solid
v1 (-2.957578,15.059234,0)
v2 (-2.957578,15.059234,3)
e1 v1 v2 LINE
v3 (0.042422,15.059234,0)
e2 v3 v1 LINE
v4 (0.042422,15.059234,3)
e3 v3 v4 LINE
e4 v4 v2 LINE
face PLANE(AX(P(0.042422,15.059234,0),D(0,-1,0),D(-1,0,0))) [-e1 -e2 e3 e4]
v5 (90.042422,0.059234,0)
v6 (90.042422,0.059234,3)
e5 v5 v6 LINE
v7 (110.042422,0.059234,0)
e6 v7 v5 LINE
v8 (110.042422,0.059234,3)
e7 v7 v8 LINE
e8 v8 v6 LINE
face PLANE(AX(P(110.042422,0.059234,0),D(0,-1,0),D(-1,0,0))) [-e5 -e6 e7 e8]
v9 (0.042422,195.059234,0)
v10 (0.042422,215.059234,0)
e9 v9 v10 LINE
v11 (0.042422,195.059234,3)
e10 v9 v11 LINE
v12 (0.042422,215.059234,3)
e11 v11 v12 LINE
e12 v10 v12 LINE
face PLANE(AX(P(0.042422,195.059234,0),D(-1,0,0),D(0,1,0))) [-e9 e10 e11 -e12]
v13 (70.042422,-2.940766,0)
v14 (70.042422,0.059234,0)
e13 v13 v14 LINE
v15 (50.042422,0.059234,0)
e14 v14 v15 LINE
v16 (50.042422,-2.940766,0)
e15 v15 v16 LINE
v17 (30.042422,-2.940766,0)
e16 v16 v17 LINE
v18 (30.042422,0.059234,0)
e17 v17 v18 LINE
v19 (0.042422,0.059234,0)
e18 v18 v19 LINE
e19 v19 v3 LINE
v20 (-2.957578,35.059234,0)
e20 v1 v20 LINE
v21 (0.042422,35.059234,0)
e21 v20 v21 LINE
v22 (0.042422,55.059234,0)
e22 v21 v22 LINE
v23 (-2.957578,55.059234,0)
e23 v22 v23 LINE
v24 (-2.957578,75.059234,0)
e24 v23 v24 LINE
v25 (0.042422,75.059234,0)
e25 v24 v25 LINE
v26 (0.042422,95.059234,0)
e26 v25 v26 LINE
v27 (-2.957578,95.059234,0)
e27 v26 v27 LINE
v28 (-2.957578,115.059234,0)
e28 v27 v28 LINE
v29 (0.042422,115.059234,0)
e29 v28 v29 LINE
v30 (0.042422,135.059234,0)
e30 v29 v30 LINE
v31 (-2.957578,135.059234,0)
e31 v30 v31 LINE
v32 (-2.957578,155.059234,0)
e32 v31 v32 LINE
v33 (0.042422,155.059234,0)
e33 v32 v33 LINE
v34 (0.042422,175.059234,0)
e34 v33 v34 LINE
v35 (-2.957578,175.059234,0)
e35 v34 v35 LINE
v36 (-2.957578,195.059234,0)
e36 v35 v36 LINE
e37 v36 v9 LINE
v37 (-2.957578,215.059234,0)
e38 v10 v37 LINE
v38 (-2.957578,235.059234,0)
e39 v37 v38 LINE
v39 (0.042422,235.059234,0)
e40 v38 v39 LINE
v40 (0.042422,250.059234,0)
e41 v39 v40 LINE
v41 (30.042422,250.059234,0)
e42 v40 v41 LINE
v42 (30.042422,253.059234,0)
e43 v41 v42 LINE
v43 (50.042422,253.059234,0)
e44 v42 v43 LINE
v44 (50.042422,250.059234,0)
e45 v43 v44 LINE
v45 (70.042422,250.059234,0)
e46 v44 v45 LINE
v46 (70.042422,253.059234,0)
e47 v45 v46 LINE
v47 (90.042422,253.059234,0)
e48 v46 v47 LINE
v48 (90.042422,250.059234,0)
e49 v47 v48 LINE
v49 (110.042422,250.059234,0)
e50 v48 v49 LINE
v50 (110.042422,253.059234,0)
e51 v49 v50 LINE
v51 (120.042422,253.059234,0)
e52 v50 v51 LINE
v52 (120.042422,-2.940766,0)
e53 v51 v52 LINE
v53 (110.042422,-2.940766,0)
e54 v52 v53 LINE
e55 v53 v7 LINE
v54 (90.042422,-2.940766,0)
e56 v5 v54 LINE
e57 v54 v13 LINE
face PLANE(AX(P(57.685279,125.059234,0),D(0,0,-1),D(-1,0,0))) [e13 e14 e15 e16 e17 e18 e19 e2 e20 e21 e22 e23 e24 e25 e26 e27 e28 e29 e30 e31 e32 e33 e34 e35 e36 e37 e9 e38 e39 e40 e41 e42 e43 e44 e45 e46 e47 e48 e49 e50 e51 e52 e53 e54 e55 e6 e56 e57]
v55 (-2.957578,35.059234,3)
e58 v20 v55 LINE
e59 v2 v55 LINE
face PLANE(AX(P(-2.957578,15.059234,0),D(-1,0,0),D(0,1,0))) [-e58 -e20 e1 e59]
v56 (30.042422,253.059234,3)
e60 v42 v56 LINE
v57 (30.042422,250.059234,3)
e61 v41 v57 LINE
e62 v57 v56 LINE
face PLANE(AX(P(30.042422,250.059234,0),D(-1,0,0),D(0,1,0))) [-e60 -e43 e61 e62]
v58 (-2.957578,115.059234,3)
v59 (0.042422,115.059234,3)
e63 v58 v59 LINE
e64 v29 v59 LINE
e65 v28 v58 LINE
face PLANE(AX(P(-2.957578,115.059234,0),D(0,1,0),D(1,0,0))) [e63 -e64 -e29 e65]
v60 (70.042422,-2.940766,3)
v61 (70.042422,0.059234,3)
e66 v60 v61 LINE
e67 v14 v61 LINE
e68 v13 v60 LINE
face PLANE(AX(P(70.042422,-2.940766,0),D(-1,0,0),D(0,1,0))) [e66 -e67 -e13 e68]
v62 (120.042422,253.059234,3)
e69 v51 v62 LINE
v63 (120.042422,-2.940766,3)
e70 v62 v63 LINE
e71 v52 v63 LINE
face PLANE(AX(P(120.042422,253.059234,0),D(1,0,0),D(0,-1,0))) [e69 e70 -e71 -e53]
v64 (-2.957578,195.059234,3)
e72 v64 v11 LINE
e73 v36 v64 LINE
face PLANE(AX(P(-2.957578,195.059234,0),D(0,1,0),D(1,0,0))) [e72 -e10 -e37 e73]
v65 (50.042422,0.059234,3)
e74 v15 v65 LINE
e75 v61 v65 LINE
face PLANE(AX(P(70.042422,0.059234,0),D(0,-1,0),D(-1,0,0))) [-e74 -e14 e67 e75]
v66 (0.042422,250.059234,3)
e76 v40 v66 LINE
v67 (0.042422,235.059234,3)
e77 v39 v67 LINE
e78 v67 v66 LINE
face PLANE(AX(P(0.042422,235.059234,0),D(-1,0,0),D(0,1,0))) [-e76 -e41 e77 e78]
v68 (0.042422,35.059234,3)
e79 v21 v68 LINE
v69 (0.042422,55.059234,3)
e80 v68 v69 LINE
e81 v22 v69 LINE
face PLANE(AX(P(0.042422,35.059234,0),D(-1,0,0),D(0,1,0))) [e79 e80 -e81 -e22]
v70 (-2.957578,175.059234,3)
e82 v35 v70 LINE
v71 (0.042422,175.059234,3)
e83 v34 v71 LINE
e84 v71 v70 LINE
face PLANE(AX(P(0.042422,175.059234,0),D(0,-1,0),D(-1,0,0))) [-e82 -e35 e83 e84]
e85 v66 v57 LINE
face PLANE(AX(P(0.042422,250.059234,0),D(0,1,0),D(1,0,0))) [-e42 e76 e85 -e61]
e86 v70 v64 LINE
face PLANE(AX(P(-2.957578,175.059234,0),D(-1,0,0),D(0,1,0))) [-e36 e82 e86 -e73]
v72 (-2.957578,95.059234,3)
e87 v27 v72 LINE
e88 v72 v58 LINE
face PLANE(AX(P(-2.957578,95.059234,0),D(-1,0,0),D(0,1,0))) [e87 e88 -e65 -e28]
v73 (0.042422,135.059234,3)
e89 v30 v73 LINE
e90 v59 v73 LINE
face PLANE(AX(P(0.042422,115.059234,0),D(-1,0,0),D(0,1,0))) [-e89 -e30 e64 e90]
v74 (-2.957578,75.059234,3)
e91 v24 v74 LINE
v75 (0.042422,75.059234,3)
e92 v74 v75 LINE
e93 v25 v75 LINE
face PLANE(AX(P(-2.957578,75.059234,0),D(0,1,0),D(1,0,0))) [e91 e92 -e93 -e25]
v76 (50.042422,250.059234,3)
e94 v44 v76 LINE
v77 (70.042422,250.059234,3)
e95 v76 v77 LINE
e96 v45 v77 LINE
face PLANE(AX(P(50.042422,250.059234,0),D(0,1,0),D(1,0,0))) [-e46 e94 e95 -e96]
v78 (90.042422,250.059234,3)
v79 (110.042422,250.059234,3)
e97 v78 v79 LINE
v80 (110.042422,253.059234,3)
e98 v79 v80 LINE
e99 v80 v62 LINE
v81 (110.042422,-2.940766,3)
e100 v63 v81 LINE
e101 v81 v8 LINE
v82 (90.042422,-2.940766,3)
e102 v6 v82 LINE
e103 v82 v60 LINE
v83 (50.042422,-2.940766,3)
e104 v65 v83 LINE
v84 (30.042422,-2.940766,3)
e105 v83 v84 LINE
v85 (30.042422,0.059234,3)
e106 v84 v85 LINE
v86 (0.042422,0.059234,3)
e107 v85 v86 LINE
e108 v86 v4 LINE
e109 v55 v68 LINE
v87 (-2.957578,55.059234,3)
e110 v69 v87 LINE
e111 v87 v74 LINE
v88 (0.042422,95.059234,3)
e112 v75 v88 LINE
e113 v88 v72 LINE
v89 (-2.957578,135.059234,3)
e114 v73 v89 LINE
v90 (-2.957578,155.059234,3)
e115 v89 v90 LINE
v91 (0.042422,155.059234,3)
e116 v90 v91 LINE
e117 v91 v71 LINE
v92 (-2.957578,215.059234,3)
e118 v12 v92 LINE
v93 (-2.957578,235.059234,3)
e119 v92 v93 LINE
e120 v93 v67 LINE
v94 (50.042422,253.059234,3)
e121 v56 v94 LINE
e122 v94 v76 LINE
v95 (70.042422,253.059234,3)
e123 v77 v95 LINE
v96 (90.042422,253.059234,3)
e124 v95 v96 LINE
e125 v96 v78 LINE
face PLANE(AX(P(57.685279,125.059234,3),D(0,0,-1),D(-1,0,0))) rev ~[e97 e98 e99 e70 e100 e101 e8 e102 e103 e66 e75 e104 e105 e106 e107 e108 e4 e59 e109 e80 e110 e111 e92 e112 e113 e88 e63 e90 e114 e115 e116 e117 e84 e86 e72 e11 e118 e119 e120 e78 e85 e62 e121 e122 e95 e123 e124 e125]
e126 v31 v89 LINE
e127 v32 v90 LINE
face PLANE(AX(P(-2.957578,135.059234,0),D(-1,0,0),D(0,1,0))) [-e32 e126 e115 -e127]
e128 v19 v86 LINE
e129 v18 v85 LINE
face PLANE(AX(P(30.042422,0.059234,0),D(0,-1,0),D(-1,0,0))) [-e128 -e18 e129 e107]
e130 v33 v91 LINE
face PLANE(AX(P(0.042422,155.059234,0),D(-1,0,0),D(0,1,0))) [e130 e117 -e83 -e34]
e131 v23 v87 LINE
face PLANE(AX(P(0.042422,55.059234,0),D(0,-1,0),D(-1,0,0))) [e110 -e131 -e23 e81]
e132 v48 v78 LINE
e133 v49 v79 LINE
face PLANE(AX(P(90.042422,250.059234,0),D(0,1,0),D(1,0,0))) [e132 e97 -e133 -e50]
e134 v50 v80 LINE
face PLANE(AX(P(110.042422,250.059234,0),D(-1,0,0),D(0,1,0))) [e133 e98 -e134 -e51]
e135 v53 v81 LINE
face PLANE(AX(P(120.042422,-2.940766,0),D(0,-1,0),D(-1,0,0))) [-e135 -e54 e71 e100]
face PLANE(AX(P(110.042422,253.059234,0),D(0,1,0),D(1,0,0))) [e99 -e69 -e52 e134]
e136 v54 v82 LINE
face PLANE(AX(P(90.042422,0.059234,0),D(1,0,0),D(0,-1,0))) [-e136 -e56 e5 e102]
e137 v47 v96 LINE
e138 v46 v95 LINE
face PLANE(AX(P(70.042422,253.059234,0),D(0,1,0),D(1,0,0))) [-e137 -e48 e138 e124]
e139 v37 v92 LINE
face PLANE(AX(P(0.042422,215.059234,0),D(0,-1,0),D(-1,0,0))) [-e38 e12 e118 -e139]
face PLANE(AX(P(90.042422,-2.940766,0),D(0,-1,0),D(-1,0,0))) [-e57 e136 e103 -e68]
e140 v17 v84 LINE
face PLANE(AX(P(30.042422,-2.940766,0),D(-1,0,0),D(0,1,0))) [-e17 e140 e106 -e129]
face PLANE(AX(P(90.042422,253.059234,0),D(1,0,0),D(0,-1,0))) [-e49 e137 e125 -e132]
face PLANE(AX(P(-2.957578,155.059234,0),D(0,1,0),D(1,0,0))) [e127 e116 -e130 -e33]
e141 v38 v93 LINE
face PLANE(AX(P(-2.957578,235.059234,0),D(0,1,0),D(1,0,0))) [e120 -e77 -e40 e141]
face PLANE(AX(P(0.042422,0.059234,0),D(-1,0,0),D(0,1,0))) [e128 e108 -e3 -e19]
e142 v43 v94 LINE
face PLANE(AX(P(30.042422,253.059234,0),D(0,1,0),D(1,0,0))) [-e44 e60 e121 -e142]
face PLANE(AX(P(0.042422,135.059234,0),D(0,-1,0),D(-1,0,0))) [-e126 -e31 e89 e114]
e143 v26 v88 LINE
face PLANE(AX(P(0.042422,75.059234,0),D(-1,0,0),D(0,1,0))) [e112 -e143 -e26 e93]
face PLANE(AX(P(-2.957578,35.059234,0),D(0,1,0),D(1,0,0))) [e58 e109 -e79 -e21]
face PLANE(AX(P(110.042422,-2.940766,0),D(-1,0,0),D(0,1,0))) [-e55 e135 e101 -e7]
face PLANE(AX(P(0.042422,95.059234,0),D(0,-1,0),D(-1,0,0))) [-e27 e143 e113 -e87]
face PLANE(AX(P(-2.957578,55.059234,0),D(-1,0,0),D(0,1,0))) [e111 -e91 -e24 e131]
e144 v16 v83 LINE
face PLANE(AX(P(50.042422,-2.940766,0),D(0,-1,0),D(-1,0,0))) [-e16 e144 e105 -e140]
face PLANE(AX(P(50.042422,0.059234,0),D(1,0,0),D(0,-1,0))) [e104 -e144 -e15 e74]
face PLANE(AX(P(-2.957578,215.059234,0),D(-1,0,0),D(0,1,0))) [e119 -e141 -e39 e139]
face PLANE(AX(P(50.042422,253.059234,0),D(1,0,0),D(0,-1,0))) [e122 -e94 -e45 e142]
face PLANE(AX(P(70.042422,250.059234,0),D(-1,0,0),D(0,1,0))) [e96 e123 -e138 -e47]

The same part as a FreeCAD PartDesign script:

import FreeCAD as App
import Part
import Sketcher

doc = App.newDocument("Part")
body = doc.addObject("PartDesign::Body", "Body")

sketch1 = body.newObject("Sketcher::SketchObject", "Sketch")
sketch1.AttachmentSupport = (doc.getObject("XY_Plane"), [""])
sketch1.MapMode = "FlatFace"
sketch1.addGeometry(Part.LineSegment(App.Vector(0, 75.1, 0), App.Vector(-3, 75.1, 0)), False)
sketch1.addGeometry(Part.LineSegment(App.Vector(-3, 75.1, 0), App.Vector(-3, 55.1, 0)), False)
sketch1.addGeometry(Part.LineSegment(App.Vector(-3, 55.1, 0), App.Vector(0, 55.1, 0)), False)
sketch1.addGeometry(Part.LineSegment(App.Vector(0, 55.1, 0), App.Vector(0, 35.1, 0)), False)
sketch1.addGeometry(Part.LineSegment(App.Vector(0, 35.1, 0), App.Vector(-3, 35.1, 0)), False)
sketch1.addGeometry(Part.LineSegment(App.Vector(-3, 35.1, 0), App.Vector(-3, 15.1, 0)), False)
sketch1.addGeometry(Part.LineSegment(App.Vector(-3, 15.1, 0), App.Vector(0, 15.1, 0)), False)
sketch1.addGeometry(Part.LineSegment(App.Vector(0, 15.1, 0), App.Vector(0, 0.1, 0)), False)
sketch1.addGeometry(Part.LineSegment(App.Vector(0, 0.1, 0), App.Vector(30, 0.1, 0)), False)
sketch1.addGeometry(Part.LineSegment(App.Vector(30, 0.1, 0), App.Vector(30, -2.9, 0)), False)
sketch1.addGeometry(Part.LineSegment(App.Vector(30, -2.9, 0), App.Vector(50, -2.9, 0)), False)
sketch1.addGeometry(Part.LineSegment(App.Vector(50, -2.9, 0), App.Vector(50, 0.1, 0)), False)
sketch1.addGeometry(Part.LineSegment(App.Vector(50, 0.1, 0), App.Vector(70, 0.1, 0)), False)
sketch1.addGeometry(Part.LineSegment(App.Vector(70, 0.1, 0), App.Vector(70, -2.9, 0)), False)
sketch1.addGeometry(Part.LineSegment(App.Vector(70, -2.9, 0), App.Vector(90, -2.9, 0)), False)
sketch1.addGeometry(Part.LineSegment(App.Vector(90, -2.9, 0), App.Vector(90, 0.1, 0)), False)
sketch1.addGeometry(Part.LineSegment(App.Vector(90, 0.1, 0), App.Vector(110, 0.1, 0)), False)
sketch1.addGeometry(Part.LineSegment(App.Vector(110, 0.1, 0), App.Vector(110, -2.9, 0)), False)
sketch1.addGeometry(Part.LineSegment(App.Vector(110, -2.9, 0), App.Vector(120, -2.9, 0)), False)
sketch1.addGeometry(Part.LineSegment(App.Vector(120, -2.9, 0), App.Vector(120, 253.1, 0)), False)
sketch1.addGeometry(Part.LineSegment(App.Vector(120, 253.1, 0), App.Vector(110, 253.1, 0)), False)
sketch1.addGeometry(Part.LineSegment(App.Vector(110, 253.1, 0), App.Vector(110, 250.1, 0)), False)
sketch1.addGeometry(Part.LineSegment(App.Vector(110, 250.1, 0), App.Vector(90, 250.1, 0)), False)
sketch1.addGeometry(Part.LineSegment(App.Vector(90, 250.1, 0), App.Vector(90, 253.1, 0)), False)
sketch1.addGeometry(Part.LineSegment(App.Vector(90, 253.1, 0), App.Vector(70, 253.1, 0)), False)
sketch1.addGeometry(Part.LineSegment(App.Vector(70, 253.1, 0), App.Vector(70, 250.1, 0)), False)
sketch1.addGeometry(Part.LineSegment(App.Vector(70, 250.1, 0), App.Vector(50, 250.1, 0)), False)
sketch1.addGeometry(Part.LineSegment(App.Vector(50, 250.1, 0), App.Vector(50, 253.1, 0)), False)
sketch1.addGeometry(Part.LineSegment(App.Vector(50, 253.1, 0), App.Vector(30, 253.1, 0)), False)
sketch1.addGeometry(Part.LineSegment(App.Vector(30, 253.1, 0), App.Vector(30, 250.1, 0)), False)
sketch1.addGeometry(Part.LineSegment(App.Vector(30, 250.1, 0), App.Vector(0, 250.1, 0)), False)
sketch1.addGeometry(Part.LineSegment(App.Vector(0, 250.1, 0), App.Vector(0, 235.1, 0)), False)
sketch1.addGeometry(Part.LineSegment(App.Vector(0, 235.1, 0), App.Vector(-3, 235.1, 0)), False)
sketch1.addGeometry(Part.LineSegment(App.Vector(-3, 235.1, 0), App.Vector(-3, 215.1, 0)), False)
sketch1.addGeometry(Part.LineSegment(App.Vector(-3, 215.1, 0), App.Vector(0, 215.1, 0)), False)
sketch1.addGeometry(Part.LineSegment(App.Vector(0, 215.1, 0), App.Vector(0, 195.1, 0)), False)
sketch1.addGeometry(Part.LineSegment(App.Vector(0, 195.1, 0), App.Vector(-3, 195.1, 0)), False)
sketch1.addGeometry(Part.LineSegment(App.Vector(-3, 195.1, 0), App.Vector(-3, 175.1, 0)), False)
sketch1.addGeometry(Part.LineSegment(App.Vector(-3, 175.1, 0), App.Vector(0, 175.1, 0)), False)
sketch1.addGeometry(Part.LineSegment(App.Vector(0, 175.1, 0), App.Vector(0, 155.1, 0)), False)
sketch1.addGeometry(Part.LineSegment(App.Vector(0, 155.1, 0), App.Vector(-3, 155.1, 0)), False)
sketch1.addGeometry(Part.LineSegment(App.Vector(-3, 155.1, 0), App.Vector(-3, 135.1, 0)), False)
sketch1.addGeometry(Part.LineSegment(App.Vector(-3, 135.1, 0), App.Vector(0, 135.1, 0)), False)
sketch1.addGeometry(Part.LineSegment(App.Vector(0, 135.1, 0), App.Vector(0, 115.1, 0)), False)
sketch1.addGeometry(Part.LineSegment(App.Vector(0, 115.1, 0), App.Vector(-3, 115.1, 0)), False)
sketch1.addGeometry(Part.LineSegment(App.Vector(-3, 115.1, 0), App.Vector(-3, 95.1, 0)), False)
sketch1.addGeometry(Part.LineSegment(App.Vector(-3, 95.1, 0), App.Vector(0, 95.1, 0)), False)
sketch1.addGeometry(Part.LineSegment(App.Vector(0, 95.1, 0), App.Vector(0, 75.1, 0)), False)
sketch1.addConstraint(Sketcher.Constraint("Coincident", 0, 2, 1, 1))
sketch1.addConstraint(Sketcher.Constraint("Coincident", 1, 2, 2, 1))
sketch1.addConstraint(Sketcher.Constraint("Coincident", 2, 2, 3, 1))
sketch1.addConstraint(Sketcher.Constraint("Coincident", 3, 2, 4, 1))
sketch1.addConstraint(Sketcher.Constraint("Coincident", 4, 2, 5, 1))
sketch1.addConstraint(Sketcher.Constraint("Coincident", 5, 2, 6, 1))
sketch1.addConstraint(Sketcher.Constraint("Coincident", 6, 2, 7, 1))
sketch1.addConstraint(Sketcher.Constraint("Coincident", 7, 2, 8, 1))
sketch1.addConstraint(Sketcher.Constraint("Coincident", 8, 2, 9, 1))
sketch1.addConstraint(Sketcher.Constraint("Coincident", 9, 2, 10, 1))
sketch1.addConstraint(Sketcher.Constraint("Coincident", 10, 2, 11, 1))
sketch1.addConstraint(Sketcher.Constraint("Coincident", 11, 2, 12, 1))
sketch1.addConstraint(Sketcher.Constraint("Coincident", 12, 2, 13, 1))
sketch1.addConstraint(Sketcher.Constraint("Coincident", 13, 2, 14, 1))
sketch1.addConstraint(Sketcher.Constraint("Coincident", 14, 2, 15, 1))
sketch1.addConstraint(Sketcher.Constraint("Coincident", 15, 2, 16, 1))
sketch1.addConstraint(Sketcher.Constraint("Coincident", 16, 2, 17, 1))
sketch1.addConstraint(Sketcher.Constraint("Coincident", 17, 2, 18, 1))
sketch1.addConstraint(Sketcher.Constraint("Coincident", 18, 2, 19, 1))
sketch1.addConstraint(Sketcher.Constraint("Coincident", 19, 2, 20, 1))
sketch1.addConstraint(Sketcher.Constraint("Coincident", 20, 2, 21, 1))
sketch1.addConstraint(Sketcher.Constraint("Coincident", 21, 2, 22, 1))
sketch1.addConstraint(Sketcher.Constraint("Coincident", 22, 2, 23, 1))
sketch1.addConstraint(Sketcher.Constraint("Coincident", 23, 2, 24, 1))
sketch1.addConstraint(Sketcher.Constraint("Coincident", 24, 2, 25, 1))
sketch1.addConstraint(Sketcher.Constraint("Coincident", 25, 2, 26, 1))
sketch1.addConstraint(Sketcher.Constraint("Coincident", 26, 2, 27, 1))
sketch1.addConstraint(Sketcher.Constraint("Coincident", 27, 2, 28, 1))
sketch1.addConstraint(Sketcher.Constraint("Coincident", 28, 2, 29, 1))
sketch1.addConstraint(Sketcher.Constraint("Coincident", 29, 2, 30, 1))
sketch1.addConstraint(Sketcher.Constraint("Coincident", 30, 2, 31, 1))
sketch1.addConstraint(Sketcher.Constraint("Coincident", 31, 2, 32, 1))
sketch1.addConstraint(Sketcher.Constraint("Coincident", 32, 2, 33, 1))
sketch1.addConstraint(Sketcher.Constraint("Coincident", 33, 2, 34, 1))
sketch1.addConstraint(Sketcher.Constraint("Coincident", 34, 2, 35, 1))
sketch1.addConstraint(Sketcher.Constraint("Coincident", 35, 2, 36, 1))
sketch1.addConstraint(Sketcher.Constraint("Coincident", 36, 2, 37, 1))
sketch1.addConstraint(Sketcher.Constraint("Coincident", 37, 2, 38, 1))
sketch1.addConstraint(Sketcher.Constraint("Coincident", 38, 2, 39, 1))
sketch1.addConstraint(Sketcher.Constraint("Coincident", 39, 2, 40, 1))
sketch1.addConstraint(Sketcher.Constraint("Coincident", 40, 2, 41, 1))
sketch1.addConstraint(Sketcher.Constraint("Coincident", 41, 2, 42, 1))
sketch1.addConstraint(Sketcher.Constraint("Coincident", 42, 2, 43, 1))
sketch1.addConstraint(Sketcher.Constraint("Coincident", 43, 2, 44, 1))
sketch1.addConstraint(Sketcher.Constraint("Coincident", 44, 2, 45, 1))
sketch1.addConstraint(Sketcher.Constraint("Coincident", 45, 2, 46, 1))
sketch1.addConstraint(Sketcher.Constraint("Coincident", 46, 2, 47, 1))
sketch1.addConstraint(Sketcher.Constraint("Coincident", 47, 2, 0, 1))
sketch1.addConstraint(Sketcher.Constraint("Horizontal", 0))
sketch1.addConstraint(Sketcher.Constraint("Vertical", 1))
sketch1.addConstraint(Sketcher.Constraint("Horizontal", 2))
sketch1.addConstraint(Sketcher.Constraint("Vertical", 3))
sketch1.addConstraint(Sketcher.Constraint("Horizontal", 4))
sketch1.addConstraint(Sketcher.Constraint("Vertical", 5))
sketch1.addConstraint(Sketcher.Constraint("Horizontal", 6))
sketch1.addConstraint(Sketcher.Constraint("Vertical", 7))
sketch1.addConstraint(Sketcher.Constraint("Horizontal", 8))
sketch1.addConstraint(Sketcher.Constraint("Vertical", 9))
sketch1.addConstraint(Sketcher.Constraint("Horizontal", 10))
sketch1.addConstraint(Sketcher.Constraint("Vertical", 11))
sketch1.addConstraint(Sketcher.Constraint("Horizontal", 12))
sketch1.addConstraint(Sketcher.Constraint("Vertical", 13))
sketch1.addConstraint(Sketcher.Constraint("Horizontal", 14))
sketch1.addConstraint(Sketcher.Constraint("Vertical", 15))
sketch1.addConstraint(Sketcher.Constraint("Horizontal", 16))
sketch1.addConstraint(Sketcher.Constraint("Vertical", 17))
sketch1.addConstraint(Sketcher.Constraint("Horizontal", 18))
sketch1.addConstraint(Sketcher.Constraint("Vertical", 19))
sketch1.addConstraint(Sketcher.Constraint("Horizontal", 20))
sketch1.addConstraint(Sketcher.Constraint("Vertical", 21))
sketch1.addConstraint(Sketcher.Constraint("Horizontal", 22))
sketch1.addConstraint(Sketcher.Constraint("Vertical", 23))
sketch1.addConstraint(Sketcher.Constraint("Horizontal", 24))
sketch1.addConstraint(Sketcher.Constraint("Vertical", 25))
sketch1.addConstraint(Sketcher.Constraint("Horizontal", 26))
sketch1.addConstraint(Sketcher.Constraint("Vertical", 27))
sketch1.addConstraint(Sketcher.Constraint("Horizontal", 28))
sketch1.addConstraint(Sketcher.Constraint("Vertical", 29))
sketch1.addConstraint(Sketcher.Constraint("Horizontal", 30))
sketch1.addConstraint(Sketcher.Constraint("Vertical", 31))
sketch1.addConstraint(Sketcher.Constraint("Horizontal", 32))
sketch1.addConstraint(Sketcher.Constraint("Vertical", 33))
sketch1.addConstraint(Sketcher.Constraint("Horizontal", 34))
sketch1.addConstraint(Sketcher.Constraint("Vertical", 35))
sketch1.addConstraint(Sketcher.Constraint("Horizontal", 36))
sketch1.addConstraint(Sketcher.Constraint("Vertical", 37))
sketch1.addConstraint(Sketcher.Constraint("Horizontal", 38))
sketch1.addConstraint(Sketcher.Constraint("Vertical", 39))
sketch1.addConstraint(Sketcher.Constraint("Horizontal", 40))
sketch1.addConstraint(Sketcher.Constraint("Vertical", 41))
sketch1.addConstraint(Sketcher.Constraint("Horizontal", 42))
sketch1.addConstraint(Sketcher.Constraint("Vertical", 43))
sketch1.addConstraint(Sketcher.Constraint("Horizontal", 44))
sketch1.addConstraint(Sketcher.Constraint("Vertical", 45))
sketch1.addConstraint(Sketcher.Constraint("Horizontal", 46))
sketch1.addConstraint(Sketcher.Constraint("Vertical", 47))
sketch1.addConstraint(Sketcher.Constraint("Horizontal", 8, 2, 11, 2))
sketch1.addConstraint(Sketcher.Constraint("Horizontal", 10, 2, 13, 2))
sketch1.addConstraint(Sketcher.Constraint("Horizontal", 12, 2, 15, 2))
sketch1.addConstraint(Sketcher.Constraint("Horizontal", 14, 2, 17, 2))
sketch1.addConstraint(Sketcher.Constraint("Horizontal", 20, 2, 23, 2))
sketch1.addConstraint(Sketcher.Constraint("Horizontal", 22, 2, 25, 2))
sketch1.addConstraint(Sketcher.Constraint("Horizontal", 24, 2, 27, 2))
sketch1.addConstraint(Sketcher.Constraint("Horizontal", 26, 2, 29, 2))
sketch1.addConstraint(Sketcher.Constraint("Vertical", 1, 2, 4, 2))
sketch1.addConstraint(Sketcher.Constraint("Vertical", 3, 2, 6, 2))
sketch1.addConstraint(Sketcher.Constraint("Vertical", 17, 2, 20, 2))
sketch1.addConstraint(Sketcher.Constraint("Vertical", 15, 2, 22, 2))
sketch1.addConstraint(Sketcher.Constraint("Vertical", 13, 2, 24, 2))
sketch1.addConstraint(Sketcher.Constraint("Vertical", 11, 2, 26, 2))
sketch1.addConstraint(Sketcher.Constraint("Vertical", 9, 2, 28, 2))
sketch1.addConstraint(Sketcher.Constraint("Vertical", 7, 2, 30, 2))
sketch1.addConstraint(Sketcher.Constraint("Vertical", 5, 2, 32, 2))
sketch1.addConstraint(Sketcher.Constraint("Vertical", 31, 2, 34, 2))
sketch1.addConstraint(Sketcher.Constraint("Vertical", 33, 2, 36, 2))
sketch1.addConstraint(Sketcher.Constraint("Vertical", 35, 2, 38, 2))
sketch1.addConstraint(Sketcher.Constraint("Vertical", 37, 2, 40, 2))
sketch1.addConstraint(Sketcher.Constraint("Vertical", 39, 2, 42, 2))
sketch1.addConstraint(Sketcher.Constraint("Vertical", 41, 2, 44, 2))
sketch1.addConstraint(Sketcher.Constraint("Vertical", 43, 2, 46, 2))
sketch1.addConstraint(Sketcher.Constraint("Equal", 10, 12))
sketch1.addConstraint(Sketcher.Constraint("Equal", 12, 14))
sketch1.addConstraint(Sketcher.Constraint("Equal", 14, 16))
sketch1.addConstraint(Sketcher.Constraint("Equal", 28, 1))
sketch1.addConstraint(Sketcher.Constraint("Equal", 1, 3))
sketch1.addConstraint(Sketcher.Constraint("Equal", 3, 5))
sketch1.addConstraint(Sketcher.Constraint("Equal", 46, 9))
sketch1.addConstraint(Sketcher.Constraint("Equal", 17, 21))
sketch1.addConstraint(Sketcher.Constraint("Equal", 7, 31))
sketch1.addConstraint(Sketcher.Constraint("Equal", 5, 33))
sketch1.addConstraint(Sketcher.Constraint("Equal", 33, 35))
sketch1.addConstraint(Sketcher.Constraint("Equal", 35, 37))
sketch1.addConstraint(Sketcher.Constraint("Equal", 37, 39))
sketch1.addConstraint(Sketcher.Constraint("Equal", 39, 41))
sketch1.addConstraint(Sketcher.Constraint("Equal", 41, 43))
sketch1.addConstraint(Sketcher.Constraint("Equal", 43, 45))
sketch1.addConstraint(Sketcher.Constraint("Equal", 45, 47))
sketch1.addConstraint(Sketcher.Constraint("DistanceX", 0, 2, 0, 1, 3.0))
sketch1.addConstraint(Sketcher.Constraint("DistanceX", 8, 1, 8, 2, 30.0))
sketch1.addConstraint(Sketcher.Constraint("DistanceX", 10, 1, 10, 2, 20.0))
sketch1.addConstraint(Sketcher.Constraint("DistanceX", 18, 1, 18, 2, 10.0))
sketch1.addConstraint(Sketcher.Constraint("DistanceY", 7, 2, 7, 1, 15.0))
sketch1.addConstraint(Sketcher.Constraint("DistanceX", 0, 2, -1, 1, 2.957578))
sketch1.addConstraint(Sketcher.Constraint("DistanceY", -1, 1, 0, 2, 75.059234))
pad1 = body.newObject("PartDesign::Pad", "Pad")
pad1.Profile = sketch1
pad1.Length = 3

doc.recompute()
